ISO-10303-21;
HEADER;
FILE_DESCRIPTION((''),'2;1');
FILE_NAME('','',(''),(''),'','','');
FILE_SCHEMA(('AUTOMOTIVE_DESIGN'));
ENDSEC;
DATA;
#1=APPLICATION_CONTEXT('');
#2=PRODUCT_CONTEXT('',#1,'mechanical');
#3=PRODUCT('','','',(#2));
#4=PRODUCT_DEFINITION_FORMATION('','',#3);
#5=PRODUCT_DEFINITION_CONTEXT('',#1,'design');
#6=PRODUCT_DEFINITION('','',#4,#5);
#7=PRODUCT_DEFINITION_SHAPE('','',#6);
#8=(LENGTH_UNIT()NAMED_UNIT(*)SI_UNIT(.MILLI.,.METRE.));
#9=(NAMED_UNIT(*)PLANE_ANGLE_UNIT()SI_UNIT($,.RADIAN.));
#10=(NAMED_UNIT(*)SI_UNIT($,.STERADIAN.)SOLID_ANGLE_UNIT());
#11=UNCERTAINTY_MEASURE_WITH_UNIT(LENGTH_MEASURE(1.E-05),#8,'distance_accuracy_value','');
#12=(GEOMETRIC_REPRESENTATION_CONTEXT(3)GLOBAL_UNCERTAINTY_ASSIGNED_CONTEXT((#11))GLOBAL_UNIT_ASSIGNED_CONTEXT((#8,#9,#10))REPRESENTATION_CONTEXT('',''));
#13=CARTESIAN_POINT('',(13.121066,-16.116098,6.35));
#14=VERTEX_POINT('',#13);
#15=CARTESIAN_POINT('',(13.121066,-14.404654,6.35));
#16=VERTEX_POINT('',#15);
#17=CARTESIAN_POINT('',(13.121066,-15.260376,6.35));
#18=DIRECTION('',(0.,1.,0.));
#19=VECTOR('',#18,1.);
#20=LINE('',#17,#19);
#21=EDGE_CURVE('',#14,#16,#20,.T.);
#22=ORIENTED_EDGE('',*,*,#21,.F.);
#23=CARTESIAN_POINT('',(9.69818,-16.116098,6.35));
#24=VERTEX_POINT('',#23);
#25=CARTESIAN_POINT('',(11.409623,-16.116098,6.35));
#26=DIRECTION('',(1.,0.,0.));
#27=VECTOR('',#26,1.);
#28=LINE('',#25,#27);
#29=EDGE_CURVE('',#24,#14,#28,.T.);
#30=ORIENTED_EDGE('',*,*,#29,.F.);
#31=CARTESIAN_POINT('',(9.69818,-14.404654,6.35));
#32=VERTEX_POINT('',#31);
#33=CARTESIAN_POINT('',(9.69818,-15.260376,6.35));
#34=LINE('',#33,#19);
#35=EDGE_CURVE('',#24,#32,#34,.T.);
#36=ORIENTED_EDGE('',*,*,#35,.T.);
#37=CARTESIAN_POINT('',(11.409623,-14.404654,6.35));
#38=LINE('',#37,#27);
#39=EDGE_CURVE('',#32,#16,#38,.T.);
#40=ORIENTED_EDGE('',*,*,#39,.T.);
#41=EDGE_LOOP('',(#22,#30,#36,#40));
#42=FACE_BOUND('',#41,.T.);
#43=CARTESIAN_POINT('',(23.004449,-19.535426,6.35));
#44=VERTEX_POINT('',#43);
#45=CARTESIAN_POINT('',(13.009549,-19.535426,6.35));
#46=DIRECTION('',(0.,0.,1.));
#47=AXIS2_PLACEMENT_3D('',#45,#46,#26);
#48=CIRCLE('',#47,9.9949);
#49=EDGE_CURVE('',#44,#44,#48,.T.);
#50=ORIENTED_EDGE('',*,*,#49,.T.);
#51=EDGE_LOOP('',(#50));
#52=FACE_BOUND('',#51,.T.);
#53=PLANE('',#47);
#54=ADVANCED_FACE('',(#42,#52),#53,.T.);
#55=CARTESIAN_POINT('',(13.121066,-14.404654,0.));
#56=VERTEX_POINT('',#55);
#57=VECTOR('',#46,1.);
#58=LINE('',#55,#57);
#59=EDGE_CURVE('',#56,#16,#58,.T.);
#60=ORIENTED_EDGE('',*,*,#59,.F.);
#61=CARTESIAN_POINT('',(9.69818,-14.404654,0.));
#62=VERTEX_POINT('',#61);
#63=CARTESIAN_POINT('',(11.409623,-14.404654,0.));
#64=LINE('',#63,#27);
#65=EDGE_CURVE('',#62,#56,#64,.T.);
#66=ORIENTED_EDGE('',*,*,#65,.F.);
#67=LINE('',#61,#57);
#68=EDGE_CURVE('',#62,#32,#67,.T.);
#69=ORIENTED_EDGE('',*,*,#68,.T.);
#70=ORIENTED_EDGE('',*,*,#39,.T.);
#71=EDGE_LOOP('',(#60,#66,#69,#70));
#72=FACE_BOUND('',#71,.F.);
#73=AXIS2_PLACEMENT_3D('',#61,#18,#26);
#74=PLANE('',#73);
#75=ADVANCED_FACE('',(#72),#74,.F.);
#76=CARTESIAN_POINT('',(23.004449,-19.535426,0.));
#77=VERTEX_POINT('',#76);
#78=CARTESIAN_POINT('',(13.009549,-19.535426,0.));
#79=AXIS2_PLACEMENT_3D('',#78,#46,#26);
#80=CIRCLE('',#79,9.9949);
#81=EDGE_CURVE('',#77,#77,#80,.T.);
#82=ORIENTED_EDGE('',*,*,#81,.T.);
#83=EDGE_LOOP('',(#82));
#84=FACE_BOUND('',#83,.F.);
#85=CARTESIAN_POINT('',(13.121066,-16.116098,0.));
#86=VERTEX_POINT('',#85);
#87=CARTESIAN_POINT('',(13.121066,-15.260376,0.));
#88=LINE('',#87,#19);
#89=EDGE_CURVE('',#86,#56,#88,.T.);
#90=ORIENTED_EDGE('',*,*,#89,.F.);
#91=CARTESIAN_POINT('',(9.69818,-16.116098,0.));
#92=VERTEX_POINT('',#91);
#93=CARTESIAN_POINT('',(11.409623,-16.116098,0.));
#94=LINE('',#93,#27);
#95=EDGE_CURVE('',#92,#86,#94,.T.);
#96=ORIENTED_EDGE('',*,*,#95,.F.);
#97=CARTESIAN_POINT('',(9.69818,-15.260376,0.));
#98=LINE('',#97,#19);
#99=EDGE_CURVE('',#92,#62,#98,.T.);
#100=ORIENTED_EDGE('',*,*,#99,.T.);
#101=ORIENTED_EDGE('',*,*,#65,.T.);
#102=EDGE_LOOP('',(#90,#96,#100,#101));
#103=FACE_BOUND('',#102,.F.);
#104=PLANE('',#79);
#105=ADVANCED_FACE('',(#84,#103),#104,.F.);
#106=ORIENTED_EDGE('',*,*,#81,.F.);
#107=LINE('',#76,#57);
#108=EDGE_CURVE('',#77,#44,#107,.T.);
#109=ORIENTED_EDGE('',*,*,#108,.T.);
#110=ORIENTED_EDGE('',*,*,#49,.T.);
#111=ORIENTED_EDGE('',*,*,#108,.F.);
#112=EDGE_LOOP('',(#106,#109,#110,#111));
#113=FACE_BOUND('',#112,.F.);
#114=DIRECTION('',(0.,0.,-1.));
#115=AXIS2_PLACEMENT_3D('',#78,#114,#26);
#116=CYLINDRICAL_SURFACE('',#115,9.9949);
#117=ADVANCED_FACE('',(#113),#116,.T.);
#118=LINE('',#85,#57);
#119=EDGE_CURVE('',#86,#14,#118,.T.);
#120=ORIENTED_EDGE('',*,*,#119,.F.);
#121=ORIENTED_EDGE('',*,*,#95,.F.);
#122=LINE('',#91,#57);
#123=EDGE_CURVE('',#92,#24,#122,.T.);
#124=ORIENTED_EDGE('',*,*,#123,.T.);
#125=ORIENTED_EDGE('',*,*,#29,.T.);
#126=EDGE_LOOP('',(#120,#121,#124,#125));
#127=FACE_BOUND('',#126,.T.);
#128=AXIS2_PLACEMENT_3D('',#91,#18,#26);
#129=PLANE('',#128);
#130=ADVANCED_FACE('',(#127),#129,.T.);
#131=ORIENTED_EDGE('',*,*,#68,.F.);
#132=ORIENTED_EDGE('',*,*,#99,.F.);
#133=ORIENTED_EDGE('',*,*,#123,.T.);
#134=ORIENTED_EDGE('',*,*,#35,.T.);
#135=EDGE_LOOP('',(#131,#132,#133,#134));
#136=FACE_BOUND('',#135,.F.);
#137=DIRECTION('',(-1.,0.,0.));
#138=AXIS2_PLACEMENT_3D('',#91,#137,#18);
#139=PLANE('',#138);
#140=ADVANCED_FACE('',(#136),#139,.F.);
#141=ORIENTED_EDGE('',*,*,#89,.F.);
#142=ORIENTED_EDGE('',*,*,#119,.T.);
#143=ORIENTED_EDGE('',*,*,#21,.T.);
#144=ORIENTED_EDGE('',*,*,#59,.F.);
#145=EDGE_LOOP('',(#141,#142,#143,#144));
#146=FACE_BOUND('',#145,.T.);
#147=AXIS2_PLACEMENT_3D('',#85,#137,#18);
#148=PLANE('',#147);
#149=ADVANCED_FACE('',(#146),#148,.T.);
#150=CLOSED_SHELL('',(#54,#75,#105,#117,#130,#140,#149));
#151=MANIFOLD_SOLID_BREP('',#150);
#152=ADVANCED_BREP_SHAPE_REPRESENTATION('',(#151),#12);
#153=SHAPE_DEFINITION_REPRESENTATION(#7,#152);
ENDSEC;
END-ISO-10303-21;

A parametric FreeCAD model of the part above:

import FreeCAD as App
import Part
import Sketcher
from FreeCAD import Vector
Q = App.Units.Quantity

doc = App.newDocument("Part")
params = doc.addObject("Spreadsheet::Sheet", "Params")
for row, (alias, value) in enumerate([
    ("sketch1_diameter", "0.787 in"),
    ("pad1_length", "0.25 in"),
], start=1):
    params.set(f"A{row}", alias)
    params.set(f"B{row}", "=" + value)
    params.setAlias(f"B{row}", alias)

body = doc.addObject("PartDesign::Body", "Body")

# Sketch on XY plane
sketch1 = body.newObject("Sketcher::SketchObject", "Sketch")
sketch1.AttachmentSupport = (doc.getObject("XY_Plane"), [""])
sketch1.MapMode = "FlatFace"
sketch1.addGeometry([
    Part.Circle(Vector(13, -19.5, 0), Vector(0, 0, 1), 10),  # 0
    Part.LineSegment(Vector(13.1, -16.1, 0), Vector(9.7, -16.1, 0)),  # 1
    Part.LineSegment(Vector(9.7, -16.1, 0), Vector(9.7, -14.4, 0)),  # 2
    Part.LineSegment(Vector(9.7, -14.4, 0), Vector(13.1, -14.4, 0)),  # 3
    Part.LineSegment(Vector(13.1, -14.4, 0), Vector(13.1, -16.1, 0)),  # 4
], False)
sketch1.addConstraint([
    Sketcher.Constraint("Coincident", 1, 2, 2, 1),
    Sketcher.Constraint("Coincident", 2, 2, 3, 1),
    Sketcher.Constraint("Coincident", 3, 2, 4, 1),
    Sketcher.Constraint("Coincident", 4, 2, 1, 1),
    Sketcher.Constraint("Horizontal", 1),
    Sketcher.Constraint("Vertical", 2),
    Sketcher.Constraint("Horizontal", 3),
    Sketcher.Constraint("Vertical", 4),
    Sketcher.Constraint("Diameter", 0, Q("0.787 in")),
    Sketcher.Constraint("DistanceY", 1, 2, -1, 1, Q("16.116098 mm")),
    Sketcher.Constraint("DistanceX", 1, 2, 1, 1, Q("3.422887 mm")),
    Sketcher.Constraint("DistanceY", 2, 1, 2, 2, Q("1.711445 mm")),
    Sketcher.Constraint("DistanceX", -1, 1, 0, 3, Q("13.009549 mm")),
    Sketcher.Constraint("DistanceX", -1, 1, 1, 2, Q("9.69818 mm")),
    Sketcher.Constraint("DistanceY", 0, 3, -1, 1, Q("19.535426 mm")),
])
sketch1.setExpression("Constraints[8]", "Params.sketch1_diameter")
pad1 = body.newObject("PartDesign::Pad", "Pad")
pad1.Profile = sketch1
pad1.setExpression("Length", "Params.pad1_length")

doc.recompute()
